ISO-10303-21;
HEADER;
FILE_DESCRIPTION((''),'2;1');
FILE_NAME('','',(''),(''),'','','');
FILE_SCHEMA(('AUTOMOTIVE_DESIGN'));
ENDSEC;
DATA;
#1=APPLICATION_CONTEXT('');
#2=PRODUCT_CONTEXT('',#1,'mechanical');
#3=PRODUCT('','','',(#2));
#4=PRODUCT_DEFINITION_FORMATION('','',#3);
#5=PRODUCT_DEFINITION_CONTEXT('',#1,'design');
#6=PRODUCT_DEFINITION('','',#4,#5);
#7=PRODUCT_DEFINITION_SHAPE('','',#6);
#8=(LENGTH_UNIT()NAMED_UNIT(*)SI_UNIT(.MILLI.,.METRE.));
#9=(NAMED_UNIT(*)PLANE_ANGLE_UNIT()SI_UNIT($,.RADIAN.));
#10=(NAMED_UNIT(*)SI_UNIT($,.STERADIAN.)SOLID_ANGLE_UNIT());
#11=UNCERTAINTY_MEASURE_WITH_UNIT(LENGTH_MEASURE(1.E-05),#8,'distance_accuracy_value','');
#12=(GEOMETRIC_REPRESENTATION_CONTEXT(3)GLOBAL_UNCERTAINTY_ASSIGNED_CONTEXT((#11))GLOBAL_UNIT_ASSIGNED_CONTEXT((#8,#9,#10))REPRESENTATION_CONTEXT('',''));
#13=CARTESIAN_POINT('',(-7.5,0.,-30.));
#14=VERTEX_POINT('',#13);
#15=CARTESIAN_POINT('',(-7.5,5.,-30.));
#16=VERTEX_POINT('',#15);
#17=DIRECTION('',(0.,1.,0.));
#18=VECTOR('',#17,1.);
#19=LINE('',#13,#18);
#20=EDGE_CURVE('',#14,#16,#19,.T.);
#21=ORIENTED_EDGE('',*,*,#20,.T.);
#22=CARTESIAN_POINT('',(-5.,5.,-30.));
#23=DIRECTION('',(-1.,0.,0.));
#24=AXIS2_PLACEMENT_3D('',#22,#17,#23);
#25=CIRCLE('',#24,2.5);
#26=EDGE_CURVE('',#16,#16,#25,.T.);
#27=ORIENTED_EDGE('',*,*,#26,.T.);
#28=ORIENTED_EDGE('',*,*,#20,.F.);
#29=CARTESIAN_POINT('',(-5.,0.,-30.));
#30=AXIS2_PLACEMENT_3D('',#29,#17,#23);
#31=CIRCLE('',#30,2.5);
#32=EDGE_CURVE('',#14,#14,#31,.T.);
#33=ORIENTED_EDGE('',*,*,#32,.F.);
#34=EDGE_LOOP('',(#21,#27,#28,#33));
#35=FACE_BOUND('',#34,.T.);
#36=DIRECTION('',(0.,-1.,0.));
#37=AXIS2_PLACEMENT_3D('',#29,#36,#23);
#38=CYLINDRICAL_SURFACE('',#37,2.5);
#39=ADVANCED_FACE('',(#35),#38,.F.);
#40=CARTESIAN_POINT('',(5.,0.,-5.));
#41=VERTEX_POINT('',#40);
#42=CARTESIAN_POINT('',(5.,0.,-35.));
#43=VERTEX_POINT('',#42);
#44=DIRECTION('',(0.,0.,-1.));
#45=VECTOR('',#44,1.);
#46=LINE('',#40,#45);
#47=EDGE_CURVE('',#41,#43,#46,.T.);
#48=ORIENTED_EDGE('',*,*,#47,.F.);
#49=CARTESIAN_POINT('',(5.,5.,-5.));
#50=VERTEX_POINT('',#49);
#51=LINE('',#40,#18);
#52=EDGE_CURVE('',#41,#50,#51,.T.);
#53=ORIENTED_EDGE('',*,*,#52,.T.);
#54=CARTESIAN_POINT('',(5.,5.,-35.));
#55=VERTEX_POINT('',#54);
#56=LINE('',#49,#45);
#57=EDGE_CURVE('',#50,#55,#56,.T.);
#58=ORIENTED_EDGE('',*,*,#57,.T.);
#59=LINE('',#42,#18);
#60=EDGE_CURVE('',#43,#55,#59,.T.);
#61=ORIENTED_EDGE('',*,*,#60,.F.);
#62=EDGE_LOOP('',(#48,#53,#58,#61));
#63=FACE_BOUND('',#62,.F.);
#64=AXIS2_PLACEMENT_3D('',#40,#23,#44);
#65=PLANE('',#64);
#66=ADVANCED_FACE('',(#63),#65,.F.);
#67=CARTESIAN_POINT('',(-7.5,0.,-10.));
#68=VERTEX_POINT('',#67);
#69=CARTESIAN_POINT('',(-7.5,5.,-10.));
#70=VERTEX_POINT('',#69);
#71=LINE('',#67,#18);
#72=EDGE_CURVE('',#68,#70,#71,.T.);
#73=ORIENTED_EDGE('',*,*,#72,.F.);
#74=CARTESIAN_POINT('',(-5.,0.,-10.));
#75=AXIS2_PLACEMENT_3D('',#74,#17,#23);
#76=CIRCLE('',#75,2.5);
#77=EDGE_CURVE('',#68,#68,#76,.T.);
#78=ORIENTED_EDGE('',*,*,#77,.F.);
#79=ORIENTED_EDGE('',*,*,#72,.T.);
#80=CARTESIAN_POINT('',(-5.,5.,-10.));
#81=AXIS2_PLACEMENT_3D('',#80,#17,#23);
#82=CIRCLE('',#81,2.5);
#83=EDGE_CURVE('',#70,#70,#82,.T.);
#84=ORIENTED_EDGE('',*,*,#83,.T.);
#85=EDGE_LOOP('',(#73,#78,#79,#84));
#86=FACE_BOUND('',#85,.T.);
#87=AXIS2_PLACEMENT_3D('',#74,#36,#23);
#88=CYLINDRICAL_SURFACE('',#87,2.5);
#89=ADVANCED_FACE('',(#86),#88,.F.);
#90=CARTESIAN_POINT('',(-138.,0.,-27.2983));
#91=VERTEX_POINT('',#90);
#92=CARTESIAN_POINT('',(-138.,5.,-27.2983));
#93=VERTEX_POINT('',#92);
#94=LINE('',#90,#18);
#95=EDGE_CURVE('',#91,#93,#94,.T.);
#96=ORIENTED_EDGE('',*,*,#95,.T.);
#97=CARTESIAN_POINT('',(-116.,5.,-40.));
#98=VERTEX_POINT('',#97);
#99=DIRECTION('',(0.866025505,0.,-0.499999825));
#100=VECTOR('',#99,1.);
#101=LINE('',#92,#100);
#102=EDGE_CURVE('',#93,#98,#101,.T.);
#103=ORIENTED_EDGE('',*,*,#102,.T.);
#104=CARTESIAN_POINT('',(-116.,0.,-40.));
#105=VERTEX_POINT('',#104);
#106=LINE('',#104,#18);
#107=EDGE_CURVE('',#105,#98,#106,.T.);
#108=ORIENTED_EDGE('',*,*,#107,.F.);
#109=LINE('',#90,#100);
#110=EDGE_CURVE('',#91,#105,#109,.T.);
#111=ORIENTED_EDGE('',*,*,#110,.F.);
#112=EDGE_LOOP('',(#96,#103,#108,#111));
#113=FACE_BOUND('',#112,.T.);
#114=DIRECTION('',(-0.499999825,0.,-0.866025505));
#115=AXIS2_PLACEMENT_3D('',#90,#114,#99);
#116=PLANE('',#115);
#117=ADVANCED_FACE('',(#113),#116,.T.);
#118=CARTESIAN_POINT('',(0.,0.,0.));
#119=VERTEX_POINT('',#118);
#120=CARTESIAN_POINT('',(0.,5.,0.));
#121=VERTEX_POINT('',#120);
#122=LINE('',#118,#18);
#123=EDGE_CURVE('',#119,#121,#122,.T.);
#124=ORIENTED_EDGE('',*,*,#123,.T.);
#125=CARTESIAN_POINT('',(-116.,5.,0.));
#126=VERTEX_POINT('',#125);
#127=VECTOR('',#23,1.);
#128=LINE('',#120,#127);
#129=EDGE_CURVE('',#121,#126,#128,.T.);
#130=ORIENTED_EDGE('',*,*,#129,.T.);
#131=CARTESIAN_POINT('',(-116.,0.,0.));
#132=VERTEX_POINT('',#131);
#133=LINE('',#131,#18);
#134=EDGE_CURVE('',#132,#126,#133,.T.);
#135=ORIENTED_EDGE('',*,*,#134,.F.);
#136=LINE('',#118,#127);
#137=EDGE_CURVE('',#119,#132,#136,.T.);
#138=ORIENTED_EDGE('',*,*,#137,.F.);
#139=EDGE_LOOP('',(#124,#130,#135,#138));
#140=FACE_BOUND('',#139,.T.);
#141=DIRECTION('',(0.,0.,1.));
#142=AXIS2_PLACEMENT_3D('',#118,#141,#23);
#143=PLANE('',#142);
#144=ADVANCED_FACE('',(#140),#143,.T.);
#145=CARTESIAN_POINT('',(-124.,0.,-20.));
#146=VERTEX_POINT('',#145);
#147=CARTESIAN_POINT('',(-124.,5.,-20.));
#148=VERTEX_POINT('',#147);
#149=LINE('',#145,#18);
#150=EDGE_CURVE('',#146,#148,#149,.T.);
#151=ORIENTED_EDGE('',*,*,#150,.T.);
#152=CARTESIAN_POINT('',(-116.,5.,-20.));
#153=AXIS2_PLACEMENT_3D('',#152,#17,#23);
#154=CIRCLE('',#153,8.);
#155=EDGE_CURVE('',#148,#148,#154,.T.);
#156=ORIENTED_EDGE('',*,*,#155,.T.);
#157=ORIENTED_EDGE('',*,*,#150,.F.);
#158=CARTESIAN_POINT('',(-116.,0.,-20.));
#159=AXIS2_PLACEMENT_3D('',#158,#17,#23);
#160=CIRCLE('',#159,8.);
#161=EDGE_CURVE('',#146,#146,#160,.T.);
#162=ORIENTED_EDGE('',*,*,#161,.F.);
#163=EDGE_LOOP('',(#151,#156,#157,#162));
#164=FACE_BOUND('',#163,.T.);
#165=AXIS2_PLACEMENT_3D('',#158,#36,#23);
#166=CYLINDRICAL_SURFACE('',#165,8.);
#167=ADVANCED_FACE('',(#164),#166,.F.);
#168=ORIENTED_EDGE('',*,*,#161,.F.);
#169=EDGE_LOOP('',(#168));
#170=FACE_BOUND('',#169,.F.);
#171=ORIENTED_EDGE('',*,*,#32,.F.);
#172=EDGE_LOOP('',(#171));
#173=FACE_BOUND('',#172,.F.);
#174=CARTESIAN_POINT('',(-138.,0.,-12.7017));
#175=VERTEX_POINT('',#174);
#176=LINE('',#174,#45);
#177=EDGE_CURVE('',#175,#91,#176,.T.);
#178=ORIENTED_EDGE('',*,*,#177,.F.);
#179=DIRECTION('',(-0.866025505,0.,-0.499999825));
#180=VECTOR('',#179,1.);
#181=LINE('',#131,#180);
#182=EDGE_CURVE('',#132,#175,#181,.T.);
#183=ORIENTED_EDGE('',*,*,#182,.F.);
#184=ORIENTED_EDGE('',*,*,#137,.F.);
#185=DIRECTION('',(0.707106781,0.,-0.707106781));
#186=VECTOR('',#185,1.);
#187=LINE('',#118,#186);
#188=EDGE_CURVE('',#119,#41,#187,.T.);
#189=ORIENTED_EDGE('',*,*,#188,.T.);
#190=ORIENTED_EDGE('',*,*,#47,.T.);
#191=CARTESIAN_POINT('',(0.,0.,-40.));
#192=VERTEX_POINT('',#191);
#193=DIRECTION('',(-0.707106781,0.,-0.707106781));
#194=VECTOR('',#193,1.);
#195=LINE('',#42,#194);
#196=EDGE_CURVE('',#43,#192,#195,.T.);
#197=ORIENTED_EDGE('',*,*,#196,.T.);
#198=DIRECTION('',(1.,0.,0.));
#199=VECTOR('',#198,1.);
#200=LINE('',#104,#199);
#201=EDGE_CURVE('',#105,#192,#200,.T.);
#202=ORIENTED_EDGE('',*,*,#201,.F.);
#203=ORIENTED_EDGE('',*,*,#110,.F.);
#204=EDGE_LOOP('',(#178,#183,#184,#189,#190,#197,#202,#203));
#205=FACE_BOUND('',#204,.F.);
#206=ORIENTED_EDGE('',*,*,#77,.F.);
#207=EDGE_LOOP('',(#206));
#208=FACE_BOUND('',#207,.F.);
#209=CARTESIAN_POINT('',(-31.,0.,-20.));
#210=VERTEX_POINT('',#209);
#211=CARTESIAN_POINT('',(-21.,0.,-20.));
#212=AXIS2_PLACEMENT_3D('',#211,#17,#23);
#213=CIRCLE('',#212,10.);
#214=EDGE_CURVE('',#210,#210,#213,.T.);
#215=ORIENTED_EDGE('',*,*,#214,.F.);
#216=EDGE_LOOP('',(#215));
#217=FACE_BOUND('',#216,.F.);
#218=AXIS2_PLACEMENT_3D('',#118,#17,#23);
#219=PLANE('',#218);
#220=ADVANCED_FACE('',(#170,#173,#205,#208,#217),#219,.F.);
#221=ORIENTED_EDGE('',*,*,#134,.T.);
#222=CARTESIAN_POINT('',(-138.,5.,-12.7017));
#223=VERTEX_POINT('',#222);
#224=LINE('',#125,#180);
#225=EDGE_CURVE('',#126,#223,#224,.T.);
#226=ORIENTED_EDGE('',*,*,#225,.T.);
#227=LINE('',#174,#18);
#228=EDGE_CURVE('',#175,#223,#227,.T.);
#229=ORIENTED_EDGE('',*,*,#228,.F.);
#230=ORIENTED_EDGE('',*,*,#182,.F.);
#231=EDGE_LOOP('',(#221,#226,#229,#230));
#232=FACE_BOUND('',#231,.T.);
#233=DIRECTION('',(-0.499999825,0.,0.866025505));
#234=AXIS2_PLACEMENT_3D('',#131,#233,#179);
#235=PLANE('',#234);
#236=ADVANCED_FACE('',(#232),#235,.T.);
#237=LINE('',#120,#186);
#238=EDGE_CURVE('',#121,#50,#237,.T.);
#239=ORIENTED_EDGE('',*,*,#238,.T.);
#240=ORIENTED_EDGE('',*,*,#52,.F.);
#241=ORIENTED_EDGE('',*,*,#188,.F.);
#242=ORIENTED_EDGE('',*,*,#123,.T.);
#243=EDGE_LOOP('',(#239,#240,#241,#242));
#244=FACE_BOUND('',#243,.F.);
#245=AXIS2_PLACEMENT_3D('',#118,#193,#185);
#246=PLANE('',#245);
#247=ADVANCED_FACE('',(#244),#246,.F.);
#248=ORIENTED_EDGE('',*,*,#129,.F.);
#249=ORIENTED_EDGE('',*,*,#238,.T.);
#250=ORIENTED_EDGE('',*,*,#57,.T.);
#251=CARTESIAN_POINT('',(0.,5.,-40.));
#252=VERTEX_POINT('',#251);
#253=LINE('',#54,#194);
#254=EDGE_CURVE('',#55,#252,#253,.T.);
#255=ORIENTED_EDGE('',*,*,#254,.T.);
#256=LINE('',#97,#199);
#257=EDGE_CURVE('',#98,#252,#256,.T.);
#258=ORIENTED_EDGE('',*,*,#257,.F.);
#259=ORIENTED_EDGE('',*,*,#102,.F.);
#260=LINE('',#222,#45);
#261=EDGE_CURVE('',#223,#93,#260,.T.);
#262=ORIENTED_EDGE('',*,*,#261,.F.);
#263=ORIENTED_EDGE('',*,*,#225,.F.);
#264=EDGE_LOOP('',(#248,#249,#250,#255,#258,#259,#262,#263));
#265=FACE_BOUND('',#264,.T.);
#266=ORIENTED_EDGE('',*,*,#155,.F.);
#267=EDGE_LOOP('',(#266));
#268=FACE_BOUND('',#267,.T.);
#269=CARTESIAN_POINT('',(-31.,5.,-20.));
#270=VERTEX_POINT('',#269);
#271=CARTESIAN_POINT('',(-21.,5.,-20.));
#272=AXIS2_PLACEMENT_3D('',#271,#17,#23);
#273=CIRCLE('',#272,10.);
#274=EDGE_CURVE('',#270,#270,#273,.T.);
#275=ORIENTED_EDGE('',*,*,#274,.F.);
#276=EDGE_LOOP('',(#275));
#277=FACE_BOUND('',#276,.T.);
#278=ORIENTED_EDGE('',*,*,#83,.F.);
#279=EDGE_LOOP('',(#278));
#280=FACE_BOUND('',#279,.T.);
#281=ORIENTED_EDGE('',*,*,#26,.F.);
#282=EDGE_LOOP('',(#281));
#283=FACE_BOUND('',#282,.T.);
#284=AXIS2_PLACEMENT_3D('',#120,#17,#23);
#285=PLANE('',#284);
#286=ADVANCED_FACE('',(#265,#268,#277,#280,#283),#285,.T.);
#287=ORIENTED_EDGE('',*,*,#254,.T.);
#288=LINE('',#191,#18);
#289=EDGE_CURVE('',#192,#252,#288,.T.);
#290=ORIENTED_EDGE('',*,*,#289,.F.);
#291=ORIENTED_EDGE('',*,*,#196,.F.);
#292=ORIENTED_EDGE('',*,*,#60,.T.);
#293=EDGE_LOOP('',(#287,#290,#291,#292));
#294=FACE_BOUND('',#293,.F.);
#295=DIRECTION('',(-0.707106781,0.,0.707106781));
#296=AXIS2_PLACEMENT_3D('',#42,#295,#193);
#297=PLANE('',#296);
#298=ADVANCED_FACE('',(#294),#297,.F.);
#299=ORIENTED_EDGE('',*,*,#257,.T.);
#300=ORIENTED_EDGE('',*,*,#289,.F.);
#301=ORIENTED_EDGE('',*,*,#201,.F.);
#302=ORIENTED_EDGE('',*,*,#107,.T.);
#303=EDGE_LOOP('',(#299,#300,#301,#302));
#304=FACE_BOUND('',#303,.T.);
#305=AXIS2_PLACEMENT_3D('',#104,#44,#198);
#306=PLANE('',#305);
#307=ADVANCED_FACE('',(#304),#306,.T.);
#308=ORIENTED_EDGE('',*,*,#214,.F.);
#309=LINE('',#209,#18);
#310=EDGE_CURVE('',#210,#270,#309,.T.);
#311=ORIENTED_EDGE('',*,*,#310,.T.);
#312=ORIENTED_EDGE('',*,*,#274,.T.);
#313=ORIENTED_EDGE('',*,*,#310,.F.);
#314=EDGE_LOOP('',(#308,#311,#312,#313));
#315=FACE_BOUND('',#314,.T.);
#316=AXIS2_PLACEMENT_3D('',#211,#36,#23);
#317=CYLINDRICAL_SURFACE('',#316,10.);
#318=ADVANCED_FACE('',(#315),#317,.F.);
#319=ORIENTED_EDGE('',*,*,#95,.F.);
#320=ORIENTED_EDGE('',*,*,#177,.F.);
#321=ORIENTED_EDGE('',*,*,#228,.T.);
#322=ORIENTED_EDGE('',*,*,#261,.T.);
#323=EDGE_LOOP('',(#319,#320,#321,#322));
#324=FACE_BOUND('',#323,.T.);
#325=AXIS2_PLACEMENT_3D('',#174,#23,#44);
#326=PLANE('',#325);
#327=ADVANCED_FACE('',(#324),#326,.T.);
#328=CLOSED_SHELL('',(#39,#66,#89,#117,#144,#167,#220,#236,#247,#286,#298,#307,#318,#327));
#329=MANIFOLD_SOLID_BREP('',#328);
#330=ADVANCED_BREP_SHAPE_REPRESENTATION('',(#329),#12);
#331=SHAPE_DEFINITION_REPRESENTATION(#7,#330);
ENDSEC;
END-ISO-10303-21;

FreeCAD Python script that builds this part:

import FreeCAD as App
import Part
import Sketcher

V = App.Vector
Q = App.Units.Quantity

doc = App.newDocument("Part")
body = doc.addObject("PartDesign::Body", "Body")

sketch1 = body.newObject("Sketcher::SketchObject", "Sketch")
sketch1.AttachmentSupport = (doc.getObject("XZ_Plane"), [""])
sketch1.MapMode = "FlatFace"
sketch1.addGeometry([
    Part.LineSegment(V(-116, 0, 0), V(0, 0, 0)),
    Part.LineSegment(V(0, 0, 0), V(5, -5, 0)),
    Part.LineSegment(V(5, -5, 0), V(5, -35, 0)),
    Part.LineSegment(V(5, -35, 0), V(0, -40, 0)),
    Part.LineSegment(V(0, -40, 0), V(-116, -40, 0)),
    Part.LineSegment(V(-116, -40, 0), V(-138, -27.3, 0)),
    Part.LineSegment(V(-138, -27.3, 0), V(-138, -12.7, 0)),
    Part.LineSegment(V(-138, -12.7, 0), V(-116, 0, 0)),
    Part.Circle(V(-5, -30, 0), V(0, 0, 1), 2.5),
    Part.Circle(V(-21, -20, 0), V(0, 0, 1), 10),
    Part.Circle(V(-5, -10, 0), V(0, 0, 1), 2.5),
    Part.Circle(V(-116, -20, 0), V(0, 0, 1), 8),
], False)
sketch1.addConstraint([
    Sketcher.Constraint("Coincident", 0, 2, 1, 1),
    Sketcher.Constraint("Coincident", 1, 2, 2, 1),
    Sketcher.Constraint("Coincident", 2, 2, 3, 1),
    Sketcher.Constraint("Coincident", 3, 2, 4, 1),
    Sketcher.Constraint("Coincident", 4, 2, 5, 1),
    Sketcher.Constraint("Coincident", 5, 2, 6, 1),
    Sketcher.Constraint("Coincident", 6, 2, 7, 1),
    Sketcher.Constraint("Coincident", 7, 2, 0, 1),
    Sketcher.Constraint("Horizontal", 0),
    Sketcher.Constraint("Vertical", 2),
    Sketcher.Constraint("Horizontal", 4),
    Sketcher.Constraint("Vertical", 6),
    Sketcher.Constraint("Coincident", 0, 2, -1, 1),
    Sketcher.Constraint("Equal", 8, 10),
    Sketcher.Constraint("PointOnObject", 3, 2, -2),
    Sketcher.Constraint("Perpendicular", 1, 3),
    Sketcher.Constraint("Horizontal", 9, 3, 11, 3),
    Sketcher.Constraint("Vertical", 8, 3, 10, 3),
    Sketcher.Constraint("Vertical", 11, 3, 4, 2),
    Sketcher.Constraint("Vertical", 4, 2, 7, 2),
    Sketcher.Constraint("Equal", 1, 3),
    Sketcher.Constraint("Equal", 5, 7),
    Sketcher.Constraint("Diameter", 8, Q("5 mm")),
    Sketcher.Constraint("Diameter", 9, Q("20 mm")),
    Sketcher.Constraint("Diameter", 11, Q("16 mm")),
    Sketcher.Constraint("DistanceY", 2, 2, 2, 1, Q("30 mm")),
    Sketcher.Constraint("Angle", 7, Q("30 deg")),
    Sketcher.Constraint("DistanceX", 8, 3, -1, 1, Q("5 mm")),
    Sketcher.Constraint("DistanceY", 8, 3, -1, 1, Q("30 mm")),
    Sketcher.Constraint("DistanceY", 9, 3, -1, 1, Q("20 mm")),
    Sketcher.Constraint("DistanceY", 10, 3, -1, 1, Q("10 mm")),
    Sketcher.Constraint("DistanceX", -1, 1, 1, 2, Q("5 mm")),
    Sketcher.Constraint("DistanceX", 9, 3, 8, 3, Q("16 mm")),
    Sketcher.Constraint("DistanceX", 11, 3, 9, 3, Q("95 mm")),
    Sketcher.Constraint("DistanceX", 5, 2, -1, 1, Q("138 mm")),
])
pad1 = body.newObject("PartDesign::Pad", "Pad")
pad1.Profile = sketch1
pad1.Length = 5
pad1.Reversed = True

doc.recompute()
